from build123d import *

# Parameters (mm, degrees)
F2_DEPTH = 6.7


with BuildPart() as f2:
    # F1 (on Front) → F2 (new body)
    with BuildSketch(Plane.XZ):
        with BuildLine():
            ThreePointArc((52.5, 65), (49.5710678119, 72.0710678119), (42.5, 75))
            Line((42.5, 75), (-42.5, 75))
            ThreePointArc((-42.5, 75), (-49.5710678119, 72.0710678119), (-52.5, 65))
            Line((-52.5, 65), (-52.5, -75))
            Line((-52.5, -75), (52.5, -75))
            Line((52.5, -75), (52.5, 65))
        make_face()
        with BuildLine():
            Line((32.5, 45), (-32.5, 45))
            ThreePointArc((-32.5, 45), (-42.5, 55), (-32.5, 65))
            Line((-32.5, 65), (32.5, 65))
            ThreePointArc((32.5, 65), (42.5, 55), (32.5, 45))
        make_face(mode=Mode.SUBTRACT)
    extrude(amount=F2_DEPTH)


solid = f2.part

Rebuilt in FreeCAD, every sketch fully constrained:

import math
import FreeCAD as App
import Part
import Sketcher
Q = App.Units.Quantity

doc = App.newDocument("Part")
params = doc.addObject("Spreadsheet::Sheet", "Params")
for row, (alias, value) in enumerate([
    ("sketch1_radius", "10 mm"),
    ("sketch1_width", "85 mm"),
    ("sketch1_width2", "65 mm"),
    ("sketch1_height", "140 mm"),
    ("pad1_length", "6.7 mm"),
], start=1):
    params.set(f"A{row}", alias)
    params.set(f"B{row}", "=" + value)
    params.setAlias(f"B{row}", alias)

body = doc.addObject("PartDesign::Body", "Body")

# Sketch on XZ plane
sketch1 = body.newObject("Sketcher::SketchObject", "Sketch")
sketch1.AttachmentSupport = (doc.getObject("XZ_Plane"), [""])
sketch1.MapMode = "FlatFace"
sketch1.addGeometry([
    Part.ArcOfCircle(Part.Circle(App.Vector(42, 65, 0), App.Vector(0, 0, 1), 10), math.radians(0), math.radians(90)),  # 0
    Part.LineSegment(App.Vector(42, 75, 0), App.Vector(-42, 75, 0)),  # 1
    Part.ArcOfCircle(Part.Circle(App.Vector(-42, 65, 0), App.Vector(0, 0, 1), 10), math.radians(90), math.radians(180)),  # 2
    Part.LineSegment(App.Vector(-52, 65, 0), App.Vector(-52, -75, 0)),  # 3
    Part.LineSegment(App.Vector(-52, -75, 0), App.Vector(52, -75, 0)),  # 4
    Part.LineSegment(App.Vector(52, -75, 0), App.Vector(52, 65, 0)),  # 5
    Part.ArcOfCircle(Part.Circle(App.Vector(32, 55, 0), App.Vector(0, 0, 1), 10), math.radians(-90), math.radians(90)),  # 6
    Part.LineSegment(App.Vector(32, 45, 0), App.Vector(-32, 45, 0)),  # 7
    Part.ArcOfCircle(Part.Circle(App.Vector(-32, 55, 0), App.Vector(0, 0, 1), 10), math.radians(90), math.radians(270)),  # 8
    Part.LineSegment(App.Vector(-32, 65, 0), App.Vector(32, 65, 0)),  # 9
], False)
sketch1.addConstraint([
    Sketcher.Constraint("Tangent", 0, 2, 1, 1),
    Sketcher.Constraint("Tangent", 1, 2, 2, 1),
    Sketcher.Constraint("Tangent", 2, 2, 3, 1),
    Sketcher.Constraint("Coincident", 3, 2, 4, 1),
    Sketcher.Constraint("Coincident", 4, 2, 5, 1),
    Sketcher.Constraint("Tangent", 5, 2, 0, 1),
    Sketcher.Constraint("Tangent", 6, 1, 7, 1),
    Sketcher.Constraint("Tangent", 7, 2, 8, 2),
    Sketcher.Constraint("Tangent", 8, 1, 9, 1),
    Sketcher.Constraint("Tangent", 9, 2, 6, 2),
    Sketcher.Constraint("Horizontal", 1),
    Sketcher.Constraint("Vertical", 3),
    Sketcher.Constraint("Horizontal", 4),
    Sketcher.Constraint("Vertical", 5),
    Sketcher.Constraint("Horizontal", 7),
    Sketcher.Constraint("Horizontal", 9),
    Sketcher.Constraint("Equal", 0, 2),
    Sketcher.Constraint("Equal", 2, 6),
    Sketcher.Constraint("Horizontal", 5, 2, 8, 1),
    Sketcher.Constraint("Radius", 0, Q("10 mm")),
    Sketcher.Constraint("DistanceX", 1, 2, 1, 1, Q("85 mm")),
    Sketcher.Constraint("DistanceX", 7, 2, 7, 1, Q("65 mm")),
    Sketcher.Constraint("DistanceY", 3, 2, 3, 1, Q("140 mm")),
    Sketcher.Constraint("DistanceY", -1, 1, 0, 3, Q("65 mm")),
    Sketcher.Constraint("DistanceX", 6, 3, 0, 3, Q("10 mm")),
    Sketcher.Constraint("DistanceX", -1, 1, 0, 3, Q("42.5 mm")),
])
sketch1.setExpression("Constraints[19]", "Params.sketch1_radius")
sketch1.setExpression("Constraints[20]", "Params.sketch1_width")
sketch1.setExpression("Constraints[21]", "Params.sketch1_width2")
sketch1.setExpression("Constraints[22]", "Params.sketch1_height")
pad1 = body.newObject("PartDesign::Pad", "Pad")
pad1.Profile = sketch1
pad1.setExpression("Length", "Params.pad1_length")

doc.recompute()
